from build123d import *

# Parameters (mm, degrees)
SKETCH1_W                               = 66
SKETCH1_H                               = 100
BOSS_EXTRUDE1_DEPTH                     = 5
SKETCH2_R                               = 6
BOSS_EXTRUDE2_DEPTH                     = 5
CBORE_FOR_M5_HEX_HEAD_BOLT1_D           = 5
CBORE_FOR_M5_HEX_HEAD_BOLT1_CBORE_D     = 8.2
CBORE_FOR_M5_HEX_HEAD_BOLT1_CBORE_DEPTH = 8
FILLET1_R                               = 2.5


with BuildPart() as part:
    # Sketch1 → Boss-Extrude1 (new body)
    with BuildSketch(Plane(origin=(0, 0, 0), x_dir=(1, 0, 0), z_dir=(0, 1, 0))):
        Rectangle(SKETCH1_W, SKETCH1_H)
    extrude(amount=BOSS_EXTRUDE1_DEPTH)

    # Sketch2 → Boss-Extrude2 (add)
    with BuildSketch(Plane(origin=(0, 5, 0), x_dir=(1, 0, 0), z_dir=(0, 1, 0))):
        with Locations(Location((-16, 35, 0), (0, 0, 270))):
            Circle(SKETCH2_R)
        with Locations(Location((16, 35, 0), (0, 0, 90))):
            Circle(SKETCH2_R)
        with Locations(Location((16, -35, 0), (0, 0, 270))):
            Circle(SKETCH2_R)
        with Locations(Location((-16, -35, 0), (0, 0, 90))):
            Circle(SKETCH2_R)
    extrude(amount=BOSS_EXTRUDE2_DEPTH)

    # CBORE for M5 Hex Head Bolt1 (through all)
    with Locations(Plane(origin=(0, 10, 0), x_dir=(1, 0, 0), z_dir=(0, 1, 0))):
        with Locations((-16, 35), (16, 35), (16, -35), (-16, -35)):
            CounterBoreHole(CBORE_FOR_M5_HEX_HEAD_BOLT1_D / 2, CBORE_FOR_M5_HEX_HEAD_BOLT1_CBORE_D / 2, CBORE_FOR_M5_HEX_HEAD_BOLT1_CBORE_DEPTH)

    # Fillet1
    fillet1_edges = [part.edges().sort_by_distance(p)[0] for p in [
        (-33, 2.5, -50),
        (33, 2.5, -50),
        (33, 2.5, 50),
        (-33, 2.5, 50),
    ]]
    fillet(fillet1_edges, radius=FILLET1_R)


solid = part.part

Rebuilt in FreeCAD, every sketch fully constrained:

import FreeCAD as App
import Part
import Sketcher
from FreeCAD import Vector


def edges_at(feature, points):
    """Names of the edges that pass closest to the given points."""
    edges = feature.Shape.Edges
    near = lambda p: min(range(len(edges)), key=lambda i: edges[i].distToShape(Part.Vertex(*p))[0])
    return sorted({f"Edge{near(p) + 1}" for p in points})

doc = App.newDocument("Part")
body = doc.addObject("PartDesign::Body", "Body")

# Sketch on XZ plane
sketch1 = body.newObject("Sketcher::SketchObject", "Sketch")
sketch1.AttachmentSupport = (doc.getObject("XZ_Plane"), [""])
sketch1.MapMode = "FlatFace"
sketch1.addGeometry([
    Part.LineSegment(Vector(-33, -50, 0), Vector(-33, 50, 0)),
    Part.LineSegment(Vector(-33, 50, 0), Vector(33, 50, 0)),
    Part.LineSegment(Vector(33, 50, 0), Vector(33, -50, 0)),
    Part.LineSegment(Vector(33, -50, 0), Vector(-33, -50, 0)),
], False)
sketch1.addConstraint([
    Sketcher.Constraint("Coincident", 0, 2, 1, 1),
    Sketcher.Constraint("Coincident", 1, 2, 2, 1),
    Sketcher.Constraint("Coincident", 2, 2, 3, 1),
    Sketcher.Constraint("Coincident", 3, 2, 0, 1),
    Sketcher.Constraint("Vertical", 0),
    Sketcher.Constraint("Horizontal", 1),
    Sketcher.Constraint("Vertical", 2),
    Sketcher.Constraint("Horizontal", 3),
    Sketcher.Constraint("Symmetric", 0, 2, 2, 2, -1, 1),
    Sketcher.Constraint("DistanceX", 1, 1, 1, 2, 66.0),
    Sketcher.Constraint("DistanceY", 0, 1, 0, 2, 100.0),
])
pad1 = body.newObject("PartDesign::Pad", "Pad")
pad1.Profile = sketch1
pad1.Length = 5
pad1.Reversed = True

# Sketch on XZ plane
sketch2 = body.newObject("Sketcher::SketchObject", "Sketch001")
sketch2.AttachmentSupport = (doc.getObject("XZ_Plane"), [""])
sketch2.MapMode = "FlatFace"
sketch2.AttachmentOffset = App.Placement(Vector(0, 0, -5), App.Rotation())
sketch2.addGeometry([
    Part.Circle(Vector(-16, -35, 0), Vector(0, 0, 1), 6),
    Part.Circle(Vector(16, -35, 0), Vector(0, 0, 1), 6),
    Part.Circle(Vector(16, 35, 0), Vector(0, 0, 1), 6),
    Part.Circle(Vector(-16, 35, 0), Vector(0, 0, 1), 6),
], False)
sketch2.addConstraint([
    Sketcher.Constraint("Equal", 0, 1),
    Sketcher.Constraint("Equal", 1, 2),
    Sketcher.Constraint("Equal", 2, 3),
    Sketcher.Constraint("Symmetric", 0, 3, 2, 3, -1, 1),
    Sketcher.Constraint("Symmetric", 1, 3, 3, 3, -1, 1),
    Sketcher.Constraint("Symmetric", 0, 3, 1, 3, -2),
    Sketcher.Constraint("Diameter", 0, 12.0),
    Sketcher.Constraint("DistanceX", 0, 3, -1, 1, 16.0),
    Sketcher.Constraint("DistanceY", 0, 3, -1, 1, 35.0),
])
pad2 = body.newObject("PartDesign::Pad", "Pad001")
pad2.Profile = sketch2
pad2.Length = 5
pad2.Reversed = True

# Sketch on XZ plane
sketch3 = body.newObject("Sketcher::SketchObject", "Sketch002")
sketch3.AttachmentSupport = (doc.getObject("XZ_Plane"), [""])
sketch3.MapMode = "FlatFace"
sketch3.AttachmentOffset = App.Placement(Vector(0, 0, -10), App.Rotation())
sketch3.addGeometry([
    Part.Circle(Vector(-16, -35, 0), Vector(0, 0, 1), 2.5),
    Part.Circle(Vector(16, -35, 0), Vector(0, 0, 1), 2.5),
    Part.Circle(Vector(16, 35, 0), Vector(0, 0, 1), 2.5),
    Part.Circle(Vector(-16, 35, 0), Vector(0, 0, 1), 2.5),
], False)
sketch3.addConstraint([
    Sketcher.Constraint("Equal", 0, 1),
    Sketcher.Constraint("Equal", 1, 2),
    Sketcher.Constraint("Equal", 2, 3),
    Sketcher.Constraint("Symmetric", 0, 3, 2, 3, -1, 1),
    Sketcher.Constraint("Symmetric", 1, 3, 3, 3, -1, 1),
    Sketcher.Constraint("Symmetric", 0, 3, 1, 3, -2),
    Sketcher.Constraint("Diameter", 0, 5.0),
    Sketcher.Constraint("DistanceX", 0, 3, -1, 1, 16.0),
    Sketcher.Constraint("DistanceY", 0, 3, -1, 1, 35.0),
])
doc.recompute()
hole = body.newObject("PartDesign::Hole", "Hole")
hole.Profile = sketch3
hole.ThreadType = "None"
hole.Diameter = 5
hole.DepthType = "ThroughAll"
hole.HoleCutType = "Counterbore"
hole.HoleCutDiameter = 8.2
hole.HoleCutDepth = 8
hole.Reversed = True
doc.recompute()

fillet = body.newObject("PartDesign::Fillet", "Fillet")
fillet.Base = (hole, edges_at(hole, [
    (-33, 2.5, -50),
    (33, 2.5, -50),
    (33, 2.5, 50),
    (-33, 2.5, 50),
]))
fillet.Radius = 2.5

doc.recompute()
